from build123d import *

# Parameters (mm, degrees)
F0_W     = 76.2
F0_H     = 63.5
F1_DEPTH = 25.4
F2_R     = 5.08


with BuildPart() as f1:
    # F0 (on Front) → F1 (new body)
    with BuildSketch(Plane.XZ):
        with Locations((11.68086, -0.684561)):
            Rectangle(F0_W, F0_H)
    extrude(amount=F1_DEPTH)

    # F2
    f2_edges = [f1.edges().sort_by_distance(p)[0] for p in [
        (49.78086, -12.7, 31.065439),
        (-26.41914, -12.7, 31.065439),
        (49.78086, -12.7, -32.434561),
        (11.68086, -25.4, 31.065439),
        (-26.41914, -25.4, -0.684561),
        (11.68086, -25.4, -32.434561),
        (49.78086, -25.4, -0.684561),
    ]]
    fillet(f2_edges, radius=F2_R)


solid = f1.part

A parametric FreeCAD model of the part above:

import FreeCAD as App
import Part
import Sketcher

V = App.Vector
Q = App.Units.Quantity


def edges_at(feature, points):
    """Names of the edges that pass closest to the given points."""
    edges = feature.Shape.Edges
    near = lambda p: min(range(len(edges)), key=lambda i: edges[i].distToShape(Part.Vertex(*p))[0])
    return sorted({f"Edge{near(p) + 1}" for p in points})


def add_polygon(sketch, points):
    """Adds a closed chain of lines whose ends are joined by coincident constraints."""
    first, n = sketch.GeometryCount, len(points)
    for a, b in zip(points, points[1:] + points[:1]):
        sketch.addGeometry(Part.LineSegment(App.Vector(*a, 0), App.Vector(*b, 0)), False)
    for i in range(n):
        sketch.addConstraint(Sketcher.Constraint("Coincident", first + i, 2, first + (i + 1) % n, 1))

doc = App.newDocument("Part")
body = doc.addObject("PartDesign::Body", "Body")

sketch1 = body.newObject("Sketcher::SketchObject", "Sketch")
sketch1.AttachmentSupport = (doc.getObject("XZ_Plane"), [""])
sketch1.MapMode = "FlatFace"
add_polygon(sketch1, [(-26.41914, 31.065439), (-26.41914, -32.434561), (49.78086, -32.434561), (49.78086, 31.065439)])
sketch1.addConstraint([
    Sketcher.Constraint("Vertical", 0),
    Sketcher.Constraint("Horizontal", 1),
    Sketcher.Constraint("Vertical", 2),
    Sketcher.Constraint("Horizontal", 3),
    Sketcher.Constraint("DistanceX", 1, 1, 1, 2, Q("3 in")),
    Sketcher.Constraint("DistanceY", 0, 2, 0, 1, Q("2.5 in")),
    Sketcher.Constraint("DistanceX", 0, 2, -1, 1, 26.41914),
    Sketcher.Constraint("DistanceY", 0, 2, -1, 1, 32.434561),
])
pad1 = body.newObject("PartDesign::Pad", "Pad")
pad1.Profile = sketch1
pad1.Length = Q("1 in")
doc.recompute()

fillet = body.newObject("PartDesign::Fillet", "Fillet")
fillet.Base = (pad1, edges_at(pad1, [
    (49.781, -12.7, 31.065),
    (-26.419, -12.7, 31.065),
    (49.781, -12.7, -32.435),
    (11.681, -25.4, 31.065),
    (-26.419, -25.4, -0.685),
    (11.681, -25.4, -32.435),
    (49.781, -25.4, -0.685),
]))
fillet.Radius = Q("0.2 in")

doc.recompute()
